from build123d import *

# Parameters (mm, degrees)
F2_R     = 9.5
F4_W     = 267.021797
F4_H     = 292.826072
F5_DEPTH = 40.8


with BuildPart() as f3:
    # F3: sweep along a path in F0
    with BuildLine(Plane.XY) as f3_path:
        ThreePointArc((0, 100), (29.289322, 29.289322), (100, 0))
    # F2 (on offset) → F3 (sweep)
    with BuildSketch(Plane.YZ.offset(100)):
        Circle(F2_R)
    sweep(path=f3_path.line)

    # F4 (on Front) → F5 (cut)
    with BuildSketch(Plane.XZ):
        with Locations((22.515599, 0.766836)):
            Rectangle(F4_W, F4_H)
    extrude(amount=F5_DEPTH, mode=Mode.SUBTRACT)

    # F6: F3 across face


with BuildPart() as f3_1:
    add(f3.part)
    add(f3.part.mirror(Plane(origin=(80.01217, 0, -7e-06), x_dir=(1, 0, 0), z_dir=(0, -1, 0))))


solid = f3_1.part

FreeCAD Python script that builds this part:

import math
import FreeCAD as App
import Part
import Sketcher
Q = App.Units.Quantity

doc = App.newDocument("Part")
params = doc.addObject("Spreadsheet::Sheet", "Params")
for row, (alias, value) in enumerate([
    ("sketch1_diameter", "19 mm"),
    ("sketch2_radius", "100 mm"),
    ("pocket1_length", "40.8 mm"),
], start=1):
    params.set(f"A{row}", alias)
    params.set(f"B{row}", "=" + value)
    params.setAlias(f"B{row}", alias)

body = doc.addObject("PartDesign::Body", "Body")

sketch1 = body.newObject("Sketcher::SketchObject", "Sketch")
sketch1.AttachmentSupport = (doc.getObject("YZ_Plane"), [""])
sketch1.MapMode = "FlatFace"
sketch1.AttachmentOffset = App.Placement(App.Vector(0, 0, 100), App.Rotation())
sketch1.addGeometry(Part.Circle(App.Vector(0, 0, 0), App.Vector(0, 0, 1), 10), False)
sketch1.addConstraint([
    Sketcher.Constraint("Coincident", 0, 3, -1, 1),
    Sketcher.Constraint("Diameter", 0, Q("19 mm")),
])
sketch1.setExpression("Constraints[1]", "Params.sketch1_diameter")

sketch2 = body.newObject("Sketcher::SketchObject", "Sketch001")
sketch2.AttachmentSupport = (doc.getObject("XY_Plane"), [""])
sketch2.MapMode = "FlatFace"
sketch2.addGeometry(Part.ArcOfCircle(Part.Circle(App.Vector(100, 100, 0), App.Vector(0, 0, 1), 100), math.radians(-180), math.radians(-90)), False)
sketch2.addConstraint([
    Sketcher.Constraint("PointOnObject", 0, 1, -2),
    Sketcher.Constraint("PointOnObject", 0, 2, -1),
    Sketcher.Constraint("Radius", 0, Q("100 mm")),
    Sketcher.Constraint("DistanceY", -1, 1, 0, 1, Q("100 mm")),
    Sketcher.Constraint("DistanceX", -1, 1, 0, 2, Q("100 mm")),
])
sketch2.setExpression("Constraints[2]", "Params.sketch2_radius")
doc.recompute()

additivepipe = body.newObject("PartDesign::AdditivePipe", "AdditivePipe")
additivepipe.Profile = sketch1
additivepipe.Spine = (sketch2, ["Edge1"])

sketch3 = body.newObject("Sketcher::SketchObject", "Sketch002")
sketch3.AttachmentSupport = (doc.getObject("XZ_Plane"), [""])
sketch3.MapMode = "FlatFace"
sketch3.addGeometry([
    Part.LineSegment(App.Vector(-111, 147, 0), App.Vector(-111, -146, 0)),
    Part.LineSegment(App.Vector(-111, -146, 0), App.Vector(156, -146, 0)),
    Part.LineSegment(App.Vector(156, -146, 0), App.Vector(156, 147, 0)),
    Part.LineSegment(App.Vector(156, 147, 0), App.Vector(-111, 147, 0)),
], False)
sketch3.addConstraint([
    Sketcher.Constraint("Coincident", 0, 2, 1, 1),
    Sketcher.Constraint("Coincident", 1, 2, 2, 1),
    Sketcher.Constraint("Coincident", 2, 2, 3, 1),
    Sketcher.Constraint("Coincident", 3, 2, 0, 1),
    Sketcher.Constraint("Vertical", 0),
    Sketcher.Constraint("Horizontal", 1),
    Sketcher.Constraint("Vertical", 2),
    Sketcher.Constraint("Horizontal", 3),
    Sketcher.Constraint("DistanceY", 0, 2, 0, 1, Q("292.826072 mm")),
    Sketcher.Constraint("DistanceX", 0, 2, -1, 1, Q("110.9953 mm")),
    Sketcher.Constraint("DistanceY", 0, 2, -1, 1, Q("145.6462 mm")),
    Sketcher.Constraint("DistanceX", 1, 1, 1, 2, Q("267.021797 mm")),
])
pocket1 = body.newObject("PartDesign::Pocket", "Pocket")
pocket1.Profile = sketch3
pocket1.setExpression("Length", "Params.pocket1_length")
pocket1.Reversed = True
body2 = doc.addObject("PartDesign::Body", "Body001")
doc.recompute()

body2.BaseFeature = body
doc.recompute()

mirroring = doc.addObject("Part::Mirroring", "Mirroring")
mirroring.Source = body
mirroring.Base = App.Vector(80.01217, 0, -0.000007)
mirroring.Normal = App.Vector(0, -1, 0)
body3 = doc.addObject("PartDesign::Body", "Body002")
body3.BaseFeature = mirroring
boolean = body2.newObject("PartDesign::Boolean", "Boolean")
boolean.Type = "Fuse"
boolean.addObjects([body3])
doc.recompute()
mirroring.Visibility = False

doc.recompute()
